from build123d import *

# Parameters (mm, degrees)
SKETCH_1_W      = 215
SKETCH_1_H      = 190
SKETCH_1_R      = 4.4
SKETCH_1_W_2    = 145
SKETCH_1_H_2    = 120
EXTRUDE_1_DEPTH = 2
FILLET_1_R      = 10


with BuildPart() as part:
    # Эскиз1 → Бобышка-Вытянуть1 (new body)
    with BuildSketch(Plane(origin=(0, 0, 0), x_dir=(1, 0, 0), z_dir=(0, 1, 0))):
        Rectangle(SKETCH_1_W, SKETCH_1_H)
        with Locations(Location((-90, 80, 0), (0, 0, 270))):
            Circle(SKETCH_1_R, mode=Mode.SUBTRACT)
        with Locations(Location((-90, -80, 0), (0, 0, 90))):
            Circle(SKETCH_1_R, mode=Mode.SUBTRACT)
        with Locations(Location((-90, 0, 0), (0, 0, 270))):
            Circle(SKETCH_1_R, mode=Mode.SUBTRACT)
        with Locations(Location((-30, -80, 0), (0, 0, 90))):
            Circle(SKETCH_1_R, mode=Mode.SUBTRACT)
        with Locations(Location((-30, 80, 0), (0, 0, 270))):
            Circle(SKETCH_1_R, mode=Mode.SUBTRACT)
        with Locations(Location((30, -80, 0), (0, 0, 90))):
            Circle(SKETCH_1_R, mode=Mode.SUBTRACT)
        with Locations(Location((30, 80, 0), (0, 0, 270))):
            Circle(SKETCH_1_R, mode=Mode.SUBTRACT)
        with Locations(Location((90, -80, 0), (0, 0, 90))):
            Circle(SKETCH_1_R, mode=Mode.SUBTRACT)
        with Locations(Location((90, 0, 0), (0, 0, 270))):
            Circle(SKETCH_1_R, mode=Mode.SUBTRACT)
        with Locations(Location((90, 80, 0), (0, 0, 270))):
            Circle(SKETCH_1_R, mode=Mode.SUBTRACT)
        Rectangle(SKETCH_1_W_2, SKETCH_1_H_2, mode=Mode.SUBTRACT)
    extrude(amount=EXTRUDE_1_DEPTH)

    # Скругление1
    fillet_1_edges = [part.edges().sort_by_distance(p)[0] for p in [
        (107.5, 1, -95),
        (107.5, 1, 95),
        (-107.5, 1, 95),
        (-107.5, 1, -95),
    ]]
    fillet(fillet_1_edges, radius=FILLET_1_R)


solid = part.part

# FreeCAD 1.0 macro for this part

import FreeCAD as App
import Part
import Sketcher

V = App.Vector


def edges_at(feature, points):
    """Names of the edges that pass closest to the given points."""
    edges = feature.Shape.Edges
    near = lambda p: min(range(len(edges)), key=lambda i: edges[i].distToShape(Part.Vertex(*p))[0])
    return sorted({f"Edge{near(p) + 1}" for p in points})


def add_polygon(sketch, points):
    """Adds a closed chain of lines whose ends are joined by coincident constraints."""
    first, n = sketch.GeometryCount, len(points)
    for a, b in zip(points, points[1:] + points[:1]):
        sketch.addGeometry(Part.LineSegment(App.Vector(*a, 0), App.Vector(*b, 0)), False)
    for i in range(n):
        sketch.addConstraint(Sketcher.Constraint("Coincident", first + i, 2, first + (i + 1) % n, 1))

doc = App.newDocument("Part")
body = doc.addObject("PartDesign::Body", "Body")

# Sketch on XZ plane
sketch1 = doc.addObject("Sketcher::SketchObject", "Sketch")
body.addObject(sketch1)
sketch1.AttachmentSupport = (doc.XZ_Plane, [""])
sketch1.MapMode = "FlatFace"
add_polygon(sketch1, [(-107.5, -95), (-107.5, 95), (107.5, 95), (107.5, -95)])  # lines 0-3
sketch1.addGeometry(Part.Circle(V(-90, 80, 0), V(0, 0, 1), 4.4), False)  # 4
sketch1.addGeometry(Part.Circle(V(-30, 80, 0), V(0, 0, 1), 4.4), False)  # 5
sketch1.addGeometry(Part.Circle(V(30, 80, 0), V(0, 0, 1), 4.4), False)  # 6
sketch1.addGeometry(Part.Circle(V(90, 80, 0), V(0, 0, 1), 4.4), False)  # 7
sketch1.addGeometry(Part.Circle(V(-90, 0, 0), V(0, 0, 1), 4.4), False)  # 8
sketch1.addGeometry(Part.Circle(V(-90, -80, 0), V(0, 0, 1), 4.4), False)  # 9
sketch1.addGeometry(Part.Circle(V(-30, -80, 0), V(0, 0, 1), 4.4), False)  # 10
add_polygon(sketch1, [(72.5, 60), (-72.5, 60), (-72.5, -60), (72.5, -60)])  # lines 11-14
sketch1.addGeometry(Part.Circle(V(90, 0, 0), V(0, 0, 1), 4.4), False)  # 15
sketch1.addGeometry(Part.Circle(V(30, -80, 0), V(0, 0, 1), 4.4), False)  # 16
sketch1.addGeometry(Part.Circle(V(90, -80, 0), V(0, 0, 1), 4.4), False)  # 17
sketch1.addConstraint([
    Sketcher.Constraint("Vertical", 0),
    Sketcher.Constraint("Horizontal", 1),
    Sketcher.Constraint("Vertical", 2),
    Sketcher.Constraint("Horizontal", 3),
    Sketcher.Constraint("Horizontal", 11),
    Sketcher.Constraint("Vertical", 12),
    Sketcher.Constraint("Horizontal", 13),
    Sketcher.Constraint("Vertical", 14),
    Sketcher.Constraint("Equal", 4, 5),
    Sketcher.Constraint("Equal", 5, 6),
    Sketcher.Constraint("Equal", 6, 7),
    Sketcher.Constraint("Equal", 7, 8),
    Sketcher.Constraint("Equal", 8, 9),
    Sketcher.Constraint("Equal", 9, 10),
    Sketcher.Constraint("Equal", 10, 15),
    Sketcher.Constraint("Equal", 15, 16),
    Sketcher.Constraint("Equal", 16, 17),
    Sketcher.Constraint("Symmetric", 7, 3, 9, 3, -1, 1),
    Sketcher.Constraint("Symmetric", 6, 3, 10, 3, -1, 1),
    Sketcher.Constraint("Symmetric", 8, 3, 15, 3, -1, 1),
    Sketcher.Constraint("Symmetric", 5, 3, 16, 3, -1, 1),
    Sketcher.Constraint("Symmetric", 4, 3, 17, 3, -1, 1),
    Sketcher.Constraint("Symmetric", 0, 2, 2, 2, -1, 1),
    Sketcher.Constraint("Symmetric", 11, 2, 13, 2, -1, 1),
    Sketcher.Constraint("Symmetric", 5, 3, 6, 3, -2),
    Sketcher.Constraint("Symmetric", 4, 3, 7, 3, -2),
    Sketcher.Constraint("PointOnObject", 8, 3, -1),
    Sketcher.Constraint("Horizontal", 4, 3, 5, 3),
    Sketcher.Constraint("Vertical", 4, 3, 8, 3),
    Sketcher.Constraint("Diameter", 4, 8.8),
    Sketcher.Constraint("DistanceX", 1, 1, 1, 2, 215.0),
    Sketcher.Constraint("DistanceX", 11, 2, 11, 1, 145.0),
    Sketcher.Constraint("DistanceY", 0, 1, 0, 2, 190.0),
    Sketcher.Constraint("DistanceY", 12, 2, 12, 1, 120.0),
    Sketcher.Constraint("DistanceX", 4, 3, -1, 1, 90.0),
    Sketcher.Constraint("DistanceY", -1, 1, 4, 3, 80.0),
    Sketcher.Constraint("DistanceX", 5, 3, -1, 1, 30.0),
])
pad1 = doc.addObject("PartDesign::Pad", "Pad")
body.addObject(pad1)
pad1.Profile = sketch1
pad1.Length = 2
pad1.Reversed = True
doc.recompute()

fillet = doc.addObject("PartDesign::Fillet", "Fillet")
body.addObject(fillet)
fillet.Base = (pad1, edges_at(pad1, [
    (107.5, 1, -95),
    (107.5, 1, 95),
    (-107.5, 1, 95),
    (-107.5, 1, -95),
]))
fillet.Radius = 10

doc.recompute()
